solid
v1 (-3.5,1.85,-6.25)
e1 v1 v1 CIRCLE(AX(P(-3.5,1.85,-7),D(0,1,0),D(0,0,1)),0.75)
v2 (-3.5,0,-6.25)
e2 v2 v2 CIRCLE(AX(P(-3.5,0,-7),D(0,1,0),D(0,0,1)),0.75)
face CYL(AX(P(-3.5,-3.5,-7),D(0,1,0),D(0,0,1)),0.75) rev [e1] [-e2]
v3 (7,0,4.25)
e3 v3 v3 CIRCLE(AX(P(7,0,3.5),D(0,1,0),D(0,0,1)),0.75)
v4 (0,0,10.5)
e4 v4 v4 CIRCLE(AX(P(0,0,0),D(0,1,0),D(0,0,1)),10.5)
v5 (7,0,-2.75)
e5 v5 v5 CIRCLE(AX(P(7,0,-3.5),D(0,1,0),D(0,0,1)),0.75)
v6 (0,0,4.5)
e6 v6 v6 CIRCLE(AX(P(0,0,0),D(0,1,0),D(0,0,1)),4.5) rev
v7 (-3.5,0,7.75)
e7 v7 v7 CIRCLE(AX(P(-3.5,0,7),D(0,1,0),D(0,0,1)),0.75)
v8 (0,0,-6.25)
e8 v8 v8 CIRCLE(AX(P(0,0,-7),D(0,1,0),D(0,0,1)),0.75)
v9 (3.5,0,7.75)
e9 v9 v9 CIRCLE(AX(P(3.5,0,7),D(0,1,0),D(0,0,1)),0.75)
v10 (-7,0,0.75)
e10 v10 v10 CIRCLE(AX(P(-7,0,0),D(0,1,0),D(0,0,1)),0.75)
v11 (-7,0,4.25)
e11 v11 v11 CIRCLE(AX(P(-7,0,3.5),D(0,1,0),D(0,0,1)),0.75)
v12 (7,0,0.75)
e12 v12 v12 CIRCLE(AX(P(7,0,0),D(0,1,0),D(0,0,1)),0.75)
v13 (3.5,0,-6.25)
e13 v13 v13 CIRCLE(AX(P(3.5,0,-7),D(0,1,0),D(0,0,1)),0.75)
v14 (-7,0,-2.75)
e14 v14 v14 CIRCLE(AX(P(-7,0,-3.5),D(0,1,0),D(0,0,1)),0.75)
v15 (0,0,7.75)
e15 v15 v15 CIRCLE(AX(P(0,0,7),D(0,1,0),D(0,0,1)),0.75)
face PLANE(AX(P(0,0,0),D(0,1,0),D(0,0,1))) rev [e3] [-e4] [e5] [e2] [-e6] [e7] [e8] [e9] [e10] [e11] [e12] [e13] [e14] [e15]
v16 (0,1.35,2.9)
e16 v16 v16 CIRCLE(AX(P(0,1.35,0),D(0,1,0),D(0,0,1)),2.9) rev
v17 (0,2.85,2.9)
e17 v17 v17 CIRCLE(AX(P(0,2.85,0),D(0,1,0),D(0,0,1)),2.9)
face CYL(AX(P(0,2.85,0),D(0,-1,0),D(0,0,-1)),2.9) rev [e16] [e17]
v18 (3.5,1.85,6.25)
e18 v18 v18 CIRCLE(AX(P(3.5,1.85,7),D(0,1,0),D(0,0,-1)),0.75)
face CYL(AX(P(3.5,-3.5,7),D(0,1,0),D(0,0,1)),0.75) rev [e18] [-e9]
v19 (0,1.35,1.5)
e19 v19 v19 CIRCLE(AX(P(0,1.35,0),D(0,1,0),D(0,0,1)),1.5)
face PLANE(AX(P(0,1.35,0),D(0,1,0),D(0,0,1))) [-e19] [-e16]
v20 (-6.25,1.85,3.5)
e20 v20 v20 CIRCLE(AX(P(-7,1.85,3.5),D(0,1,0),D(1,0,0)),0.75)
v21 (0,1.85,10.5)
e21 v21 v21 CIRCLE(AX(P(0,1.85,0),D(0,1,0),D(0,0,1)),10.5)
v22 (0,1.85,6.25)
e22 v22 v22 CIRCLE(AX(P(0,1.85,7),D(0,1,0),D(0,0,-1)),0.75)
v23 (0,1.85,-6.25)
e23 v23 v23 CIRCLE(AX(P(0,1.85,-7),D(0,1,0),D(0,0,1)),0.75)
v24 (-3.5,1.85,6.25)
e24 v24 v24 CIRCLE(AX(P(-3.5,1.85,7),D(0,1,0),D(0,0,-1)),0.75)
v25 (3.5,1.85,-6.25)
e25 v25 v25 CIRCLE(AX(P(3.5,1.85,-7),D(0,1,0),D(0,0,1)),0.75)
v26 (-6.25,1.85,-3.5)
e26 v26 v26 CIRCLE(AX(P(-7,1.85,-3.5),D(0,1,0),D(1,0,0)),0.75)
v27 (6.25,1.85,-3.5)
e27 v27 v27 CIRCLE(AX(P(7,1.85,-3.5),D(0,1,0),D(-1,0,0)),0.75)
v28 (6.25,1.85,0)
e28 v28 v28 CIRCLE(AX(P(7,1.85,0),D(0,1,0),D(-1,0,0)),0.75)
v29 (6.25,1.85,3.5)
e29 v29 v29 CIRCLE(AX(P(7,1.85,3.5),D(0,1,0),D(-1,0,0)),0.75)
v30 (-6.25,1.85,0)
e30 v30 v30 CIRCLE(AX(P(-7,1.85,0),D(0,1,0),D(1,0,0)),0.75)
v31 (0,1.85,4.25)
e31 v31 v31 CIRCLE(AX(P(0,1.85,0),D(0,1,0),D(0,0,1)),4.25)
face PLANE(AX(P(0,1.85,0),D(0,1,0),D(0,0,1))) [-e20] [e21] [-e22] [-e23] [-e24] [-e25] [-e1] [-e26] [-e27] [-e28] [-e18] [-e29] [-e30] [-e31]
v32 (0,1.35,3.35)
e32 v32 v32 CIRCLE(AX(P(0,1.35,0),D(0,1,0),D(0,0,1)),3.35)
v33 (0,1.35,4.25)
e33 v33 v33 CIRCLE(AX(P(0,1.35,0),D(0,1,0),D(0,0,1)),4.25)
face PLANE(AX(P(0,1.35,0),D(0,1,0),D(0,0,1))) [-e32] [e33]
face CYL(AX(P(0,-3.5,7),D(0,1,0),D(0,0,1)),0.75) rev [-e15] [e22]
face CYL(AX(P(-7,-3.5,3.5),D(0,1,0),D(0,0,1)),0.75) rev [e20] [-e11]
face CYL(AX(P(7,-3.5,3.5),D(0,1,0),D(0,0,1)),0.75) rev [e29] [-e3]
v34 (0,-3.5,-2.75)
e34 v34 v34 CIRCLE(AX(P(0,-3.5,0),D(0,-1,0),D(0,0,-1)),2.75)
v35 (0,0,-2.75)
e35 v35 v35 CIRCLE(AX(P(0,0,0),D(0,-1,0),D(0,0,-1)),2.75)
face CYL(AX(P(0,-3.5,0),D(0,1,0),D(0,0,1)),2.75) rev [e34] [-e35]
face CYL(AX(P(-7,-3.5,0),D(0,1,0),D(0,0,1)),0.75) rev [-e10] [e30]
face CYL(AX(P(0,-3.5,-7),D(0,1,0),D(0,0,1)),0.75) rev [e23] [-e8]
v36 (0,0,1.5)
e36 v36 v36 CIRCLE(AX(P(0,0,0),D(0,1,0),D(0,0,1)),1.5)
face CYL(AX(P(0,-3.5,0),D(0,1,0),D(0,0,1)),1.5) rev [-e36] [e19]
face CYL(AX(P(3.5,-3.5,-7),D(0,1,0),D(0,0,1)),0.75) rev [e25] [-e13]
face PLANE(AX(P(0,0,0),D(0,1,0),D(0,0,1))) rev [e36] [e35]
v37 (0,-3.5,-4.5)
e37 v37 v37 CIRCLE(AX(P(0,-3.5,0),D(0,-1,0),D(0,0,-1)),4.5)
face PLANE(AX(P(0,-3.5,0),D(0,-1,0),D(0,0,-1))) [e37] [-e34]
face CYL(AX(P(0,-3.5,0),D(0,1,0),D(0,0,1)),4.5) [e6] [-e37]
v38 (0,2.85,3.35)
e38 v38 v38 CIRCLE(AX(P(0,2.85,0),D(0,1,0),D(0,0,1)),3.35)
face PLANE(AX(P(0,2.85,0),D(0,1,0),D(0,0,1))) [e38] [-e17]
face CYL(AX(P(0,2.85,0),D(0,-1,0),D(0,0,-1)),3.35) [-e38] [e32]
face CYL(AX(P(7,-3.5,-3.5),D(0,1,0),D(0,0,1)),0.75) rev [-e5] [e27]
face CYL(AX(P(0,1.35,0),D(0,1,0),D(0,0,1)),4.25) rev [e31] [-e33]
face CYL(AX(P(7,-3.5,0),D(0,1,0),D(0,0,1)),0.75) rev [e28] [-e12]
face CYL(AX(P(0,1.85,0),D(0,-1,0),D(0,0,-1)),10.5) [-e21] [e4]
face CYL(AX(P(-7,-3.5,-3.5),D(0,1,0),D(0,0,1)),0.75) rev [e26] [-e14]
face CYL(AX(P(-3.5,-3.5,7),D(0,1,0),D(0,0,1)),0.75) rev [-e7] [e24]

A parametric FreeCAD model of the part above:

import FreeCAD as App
import Part
import Sketcher
Q = App.Units.Quantity

doc = App.newDocument("Part")
body = doc.addObject("PartDesign::Body", "Body")

sketch1 = body.newObject("Sketcher::SketchObject", "Sketch")
sketch1.AttachmentSupport = (doc.getObject("XZ_Plane"), [""])
sketch1.MapMode = "FlatFace"
sketch1.addGeometry(Part.Circle(App.Vector(0, 0, 0), App.Vector(0, 0, 1), 10), False)
sketch1.addConstraint([
    Sketcher.Constraint("Coincident", 0, 3, -1, 1),
    Sketcher.Constraint("Diameter", 0, Q("21 mm")),
])
pad1 = body.newObject("PartDesign::Pad", "Pad")
pad1.Profile = sketch1
pad1.Length = 1.85
pad1.Reversed = True

sketch2 = body.newObject("Sketcher::SketchObject", "Sketch001")
sketch2.AttachmentSupport = (doc.getObject("XZ_Plane"), [""])
sketch2.MapMode = "FlatFace"
sketch2.AttachmentOffset = App.Placement(App.Vector(0, 0, -1.85), App.Rotation())
sketch2.addGeometry(Part.Circle(App.Vector(0, 0, 0), App.Vector(0, 0, 1), 4.2), False)
sketch2.addConstraint([
    Sketcher.Constraint("Coincident", 0, 3, -1, 1),
    Sketcher.Constraint("Diameter", 0, Q("8.5 mm")),
])
pocket1 = body.newObject("PartDesign::Pocket", "Pocket")
pocket1.Profile = sketch2
pocket1.Length = 0.5
pocket1.Reversed = True

sketch3 = body.newObject("Sketcher::SketchObject", "Sketch002")
sketch3.AttachmentSupport = (doc.getObject("XZ_Plane"), [""])
sketch3.MapMode = "FlatFace"
sketch3.AttachmentOffset = App.Placement(App.Vector(0, 0, -1.35), App.Rotation())
sketch3.addGeometry([
    Part.Circle(App.Vector(0, 0, 0), App.Vector(0, 0, 1), 3.4),
    Part.Circle(App.Vector(0, 0, 0), App.Vector(0, 0, 1), 2.9),
], False)
sketch3.addConstraint([
    Sketcher.Constraint("Coincident", 0, 3, -1, 1),
    Sketcher.Constraint("Coincident", 1, 3, -1, 1),
    Sketcher.Constraint("Diameter", 0, Q("6.7 mm")),
    Sketcher.Constraint("Diameter", 1, Q("5.8 mm")),
])
pad2 = body.newObject("PartDesign::Pad", "Pad001")
pad2.Profile = sketch3
pad2.Length = 1.5
pad2.Reversed = True

sketch4 = body.newObject("Sketcher::SketchObject", "Sketch003")
sketch4.AttachmentSupport = (doc.getObject("XZ_Plane"), [""])
sketch4.MapMode = "FlatFace"
sketch4.addGeometry([
    Part.Circle(App.Vector(0, 0, 0), App.Vector(0, 0, 1), 4.5),
    Part.Circle(App.Vector(0, 0, 0), App.Vector(0, 0, 1), 2.8),
], False)
sketch4.addConstraint([
    Sketcher.Constraint("Coincident", 0, 3, -1, 1),
    Sketcher.Constraint("Coincident", 1, 3, -1, 1),
    Sketcher.Constraint("Diameter", 0, Q("9 mm")),
    Sketcher.Constraint("Diameter", 1, Q("5.5 mm")),
])
pad3 = body.newObject("PartDesign::Pad", "Pad002")
pad3.Profile = sketch4
pad3.Length = 3.5

sketch5 = body.newObject("Sketcher::SketchObject", "Sketch004")
sketch5.AttachmentSupport = (doc.getObject("XZ_Plane"), [""])
sketch5.MapMode = "FlatFace"
sketch5.AttachmentOffset = App.Placement(App.Vector(0, 0, -1.35), App.Rotation())
sketch5.addGeometry(Part.Circle(App.Vector(0, 0, 0), App.Vector(0, 0, 1), 1.5), False)
sketch5.addConstraint([
    Sketcher.Constraint("Coincident", 0, 3, -1, 1),
    Sketcher.Constraint("Diameter", 0, Q("3 mm")),
])
pocket2 = body.newObject("PartDesign::Pocket", "Pocket001")
pocket2.Profile = sketch5
pocket2.Type = "ThroughAll"
pocket2.Reversed = True

sketch6 = body.newObject("Sketcher::SketchObject", "Sketch005")
sketch6.AttachmentSupport = (doc.getObject("XZ_Plane"), [""])
sketch6.MapMode = "FlatFace"
sketch6.AttachmentOffset = App.Placement(App.Vector(0, 0, -1.85), App.Rotation())
sketch6.addGeometry([
    Part.Circle(App.Vector(-3.5, -7, 0), App.Vector(0, 0, 1), 0.8),
    Part.Circle(App.Vector(0, -7, 0), App.Vector(0, 0, 1), 0.8),
    Part.Circle(App.Vector(3.5, -7, 0), App.Vector(0, 0, 1), 0.8),
], False)
sketch6.addConstraint([
    Sketcher.Constraint("Equal", 0, 1),
    Sketcher.Constraint("Equal", 1, 2),
    Sketcher.Constraint("Symmetric", 0, 3, 2, 3, -2),
    Sketcher.Constraint("PointOnObject", 1, 3, -2),
    Sketcher.Constraint("Horizontal", 0, 3, 1, 3),
    Sketcher.Constraint("Diameter", 0, Q("1.5 mm")),
    Sketcher.Constraint("DistanceY", 0, 3, -1, 1, Q("7 mm")),
    Sketcher.Constraint("DistanceX", 0, 3, 2, 3, Q("7 mm")),
])
pocket3 = body.newObject("PartDesign::Pocket", "Pocket002")
pocket3.Profile = sketch6
pocket3.Type = "ThroughAll"
pocket3.Reversed = True
doc.recompute()

polarpattern = body.newObject("PartDesign::PolarPattern", "PolarPattern")
polarpattern.Originals = [pocket3]
polarpattern.Axis = (doc.getObject("Y_Axis"), [""])
polarpattern.Angle = 360
polarpattern.Occurrences = 4
body.Tip = polarpattern

doc.recompute()
